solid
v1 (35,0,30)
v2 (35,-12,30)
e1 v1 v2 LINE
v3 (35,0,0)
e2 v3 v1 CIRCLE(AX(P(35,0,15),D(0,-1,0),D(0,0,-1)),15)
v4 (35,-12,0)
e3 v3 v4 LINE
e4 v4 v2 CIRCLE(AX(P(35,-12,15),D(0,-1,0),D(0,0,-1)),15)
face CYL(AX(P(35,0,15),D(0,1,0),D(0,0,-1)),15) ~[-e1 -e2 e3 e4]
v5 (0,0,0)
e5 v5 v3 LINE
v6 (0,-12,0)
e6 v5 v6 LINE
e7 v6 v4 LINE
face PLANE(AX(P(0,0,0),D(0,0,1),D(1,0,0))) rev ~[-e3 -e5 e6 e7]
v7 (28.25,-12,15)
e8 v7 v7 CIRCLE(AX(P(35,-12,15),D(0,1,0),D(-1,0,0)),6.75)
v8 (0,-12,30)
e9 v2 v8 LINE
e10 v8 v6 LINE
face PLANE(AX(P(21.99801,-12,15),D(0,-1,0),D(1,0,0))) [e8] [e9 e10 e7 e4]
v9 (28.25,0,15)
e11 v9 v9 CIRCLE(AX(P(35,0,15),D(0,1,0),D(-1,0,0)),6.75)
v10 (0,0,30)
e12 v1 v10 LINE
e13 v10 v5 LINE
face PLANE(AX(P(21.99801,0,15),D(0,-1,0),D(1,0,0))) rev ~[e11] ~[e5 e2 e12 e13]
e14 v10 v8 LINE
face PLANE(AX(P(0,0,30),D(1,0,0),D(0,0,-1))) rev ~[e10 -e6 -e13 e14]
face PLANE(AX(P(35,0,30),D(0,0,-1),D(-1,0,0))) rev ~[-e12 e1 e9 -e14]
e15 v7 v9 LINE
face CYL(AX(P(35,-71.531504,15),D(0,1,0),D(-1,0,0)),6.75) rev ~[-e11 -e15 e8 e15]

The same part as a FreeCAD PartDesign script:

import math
import FreeCAD as App
import Part
import Sketcher

V = App.Vector

doc = App.newDocument("Part")
params = doc.addObject("Spreadsheet::Sheet", "Params")
for row, (alias, value) in enumerate([
    ("sketch1_radius", "15 mm"),
    ("sketch1_width", "35 mm"),
    ("pad1_length", "12 mm"),
    ("sketch2_diameter", "13.5 mm"),
    ("hole_diameter", "13.5 mm"),
], start=1):
    params.set(f"A{row}", alias)
    params.set(f"B{row}", "=" + value)
    params.setAlias(f"B{row}", alias)

body = doc.addObject("PartDesign::Body", "Body")

sketch1 = doc.addObject("Sketcher::SketchObject", "Sketch")
body.addObject(sketch1)
sketch1.AttachmentSupport = (doc.XZ_Plane, [""])
sketch1.MapMode = "FlatFace"
sketch1.addGeometry([
    Part.LineSegment(V(0, 30, 0), V(0, 0, 0)),
    Part.LineSegment(V(0, 0, 0), V(35, 0, 0)),
    Part.ArcOfCircle(Part.Circle(V(35, 15, 0), V(0, 0, 1), 15), math.radians(-90), math.radians(90)),
    Part.LineSegment(V(35, 30, 0), V(0, 30, 0)),
], False)
sketch1.addConstraint([
    Sketcher.Constraint("Coincident", 0, 2, 1, 1),
    Sketcher.Constraint("Tangent", 1, 2, 2, 1),
    Sketcher.Constraint("Tangent", 2, 2, 3, 1),
    Sketcher.Constraint("Coincident", 3, 2, 0, 1),
    Sketcher.Constraint("Vertical", 0),
    Sketcher.Constraint("Horizontal", 1),
    Sketcher.Constraint("Horizontal", 3),
    Sketcher.Constraint("Coincident", 0, 2, -1, 1),
    Sketcher.Constraint("Radius", 2, 15.0),
    Sketcher.Constraint("DistanceX", 1, 1, 1, 2, 35.0),
])
sketch1.setExpression("Constraints[8]", "Params.sketch1_radius")
sketch1.setExpression("Constraints[9]", "Params.sketch1_width")
pad1 = doc.addObject("PartDesign::Pad", "Pad")
body.addObject(pad1)
pad1.Profile = sketch1
pad1.setExpression("Length", "Params.pad1_length")

sketch2 = doc.addObject("Sketcher::SketchObject", "Sketch001")
body.addObject(sketch2)
sketch2.AttachmentSupport = (doc.XZ_Plane, [""])
sketch2.MapMode = "FlatFace"
sketch2.AttachmentOffset = App.Placement(V(0, 0, 12), App.Rotation())
sketch2.addGeometry(Part.Circle(V(35, 15, 0), V(0, 0, 1), 6.75), False)
sketch2.addConstraint([
    Sketcher.Constraint("Diameter", 0, 13.5),
    Sketcher.Constraint("DistanceX", -1, 1, 0, 3, 35.0),
    Sketcher.Constraint("DistanceY", -1, 1, 0, 3, 15.0),
])
sketch2.setExpression("Constraints[0]", "Params.sketch2_diameter")
doc.recompute()
hole = doc.addObject("PartDesign::Hole", "Hole")
body.addObject(hole)
hole.Profile = sketch2
hole.ThreadType = "None"
hole.setExpression("Diameter", "Params.hole_diameter")
hole.DepthType = "ThroughAll"

doc.recompute()
